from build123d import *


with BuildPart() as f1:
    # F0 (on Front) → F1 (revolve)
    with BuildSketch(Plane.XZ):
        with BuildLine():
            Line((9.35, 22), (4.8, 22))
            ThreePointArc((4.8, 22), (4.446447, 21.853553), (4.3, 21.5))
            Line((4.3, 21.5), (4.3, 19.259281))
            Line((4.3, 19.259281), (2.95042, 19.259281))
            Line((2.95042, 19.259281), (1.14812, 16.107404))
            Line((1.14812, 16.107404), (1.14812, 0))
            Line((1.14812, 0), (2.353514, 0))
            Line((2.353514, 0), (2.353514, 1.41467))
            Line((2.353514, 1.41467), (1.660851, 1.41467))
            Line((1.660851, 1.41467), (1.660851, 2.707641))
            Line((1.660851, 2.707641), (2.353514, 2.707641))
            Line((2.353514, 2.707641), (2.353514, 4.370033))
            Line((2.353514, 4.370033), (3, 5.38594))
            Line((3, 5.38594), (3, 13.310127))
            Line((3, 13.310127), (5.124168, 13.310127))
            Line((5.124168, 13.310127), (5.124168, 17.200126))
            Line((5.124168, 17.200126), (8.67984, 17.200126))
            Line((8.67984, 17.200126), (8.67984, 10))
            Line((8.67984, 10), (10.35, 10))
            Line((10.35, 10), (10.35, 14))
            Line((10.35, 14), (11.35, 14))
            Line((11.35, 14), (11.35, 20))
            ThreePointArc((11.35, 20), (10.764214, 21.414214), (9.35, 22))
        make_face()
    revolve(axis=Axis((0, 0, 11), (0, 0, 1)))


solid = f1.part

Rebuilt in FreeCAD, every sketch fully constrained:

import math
import FreeCAD as App
import Part
import Sketcher

V = App.Vector
Q = App.Units.Quantity

doc = App.newDocument("Part")
body = doc.addObject("PartDesign::Body", "Body")

sketch1 = doc.addObject("Sketcher::SketchObject", "Sketch")
body.addObject(sketch1)
sketch1.AttachmentSupport = (doc.XZ_Plane, [""])
sketch1.MapMode = "FlatFace"
sketch1.addGeometry(Part.LineSegment(V(9.3, 22, 0), V(4.8, 22, 0)), False)
sketch1.addGeometry(Part.ArcOfCircle(Part.Circle(V(4.8, 21.5, 0), V(0, 0, 1), 0.5), math.radians(90), math.radians(180)), False)
sketch1.addGeometry(Part.LineSegment(V(4.3, 21.5, 0), V(4.3, 19.3, 0)), False)
sketch1.addGeometry(Part.LineSegment(V(4.3, 19.3, 0), V(3, 19.3, 0)), False)
sketch1.addGeometry(Part.LineSegment(V(3, 19.3, 0), V(1.1, 16.1, 0)), False)
sketch1.addGeometry(Part.LineSegment(V(1.1, 16.1, 0), V(1.1, 0, 0)), False)
sketch1.addGeometry(Part.LineSegment(V(1.1, 0, 0), V(2.4, 0, 0)), False)
sketch1.addGeometry(Part.LineSegment(V(2.4, 0, 0), V(2.4, 1.4, 0)), False)
sketch1.addGeometry(Part.LineSegment(V(2.4, 1.4, 0), V(1.7, 1.4, 0)), False)
sketch1.addGeometry(Part.LineSegment(V(1.7, 1.4, 0), V(1.7, 2.7, 0)), False)
sketch1.addGeometry(Part.LineSegment(V(1.7, 2.7, 0), V(2.4, 2.7, 0)), False)
sketch1.addGeometry(Part.LineSegment(V(2.4, 2.7, 0), V(2.4, 4.4, 0)), False)
sketch1.addGeometry(Part.LineSegment(V(2.4, 4.4, 0), V(3, 5.4, 0)), False)
sketch1.addGeometry(Part.LineSegment(V(3, 5.4, 0), V(3, 13.3, 0)), False)
sketch1.addGeometry(Part.LineSegment(V(3, 13.3, 0), V(5.1, 13.3, 0)), False)
sketch1.addGeometry(Part.LineSegment(V(5.1, 13.3, 0), V(5.1, 17.2, 0)), False)
sketch1.addGeometry(Part.LineSegment(V(5.1, 17.2, 0), V(8.7, 17.2, 0)), False)
sketch1.addGeometry(Part.LineSegment(V(8.7, 17.2, 0), V(8.7, 10, 0)), False)
sketch1.addGeometry(Part.LineSegment(V(8.7, 10, 0), V(10.3, 10, 0)), False)
sketch1.addGeometry(Part.LineSegment(V(10.3, 10, 0), V(10.3, 14, 0)), False)
sketch1.addGeometry(Part.LineSegment(V(10.3, 14, 0), V(11.3, 14, 0)), False)
sketch1.addGeometry(Part.LineSegment(V(11.3, 14, 0), V(11.3, 20, 0)), False)
sketch1.addGeometry(Part.ArcOfCircle(Part.Circle(V(9.4, 20, 0), V(0, 0, 1), 2), math.radians(0), math.radians(90)), False)
sketch1.addConstraint(Sketcher.Constraint("Coincident", 0, 2, 1, 1))
sketch1.addConstraint(Sketcher.Constraint("Coincident", 1, 2, 2, 1))
sketch1.addConstraint(Sketcher.Constraint("Coincident", 2, 2, 3, 1))
sketch1.addConstraint(Sketcher.Constraint("Coincident", 3, 2, 4, 1))
sketch1.addConstraint(Sketcher.Constraint("Coincident", 4, 2, 5, 1))
sketch1.addConstraint(Sketcher.Constraint("Coincident", 5, 2, 6, 1))
sketch1.addConstraint(Sketcher.Constraint("Coincident", 6, 2, 7, 1))
sketch1.addConstraint(Sketcher.Constraint("Coincident", 7, 2, 8, 1))
sketch1.addConstraint(Sketcher.Constraint("Coincident", 8, 2, 9, 1))
sketch1.addConstraint(Sketcher.Constraint("Coincident", 9, 2, 10, 1))
sketch1.addConstraint(Sketcher.Constraint("Coincident", 10, 2, 11, 1))
sketch1.addConstraint(Sketcher.Constraint("Coincident", 11, 2, 12, 1))
sketch1.addConstraint(Sketcher.Constraint("Coincident", 12, 2, 13, 1))
sketch1.addConstraint(Sketcher.Constraint("Coincident", 13, 2, 14, 1))
sketch1.addConstraint(Sketcher.Constraint("Coincident", 14, 2, 15, 1))
sketch1.addConstraint(Sketcher.Constraint("Coincident", 15, 2, 16, 1))
sketch1.addConstraint(Sketcher.Constraint("Coincident", 16, 2, 17, 1))
sketch1.addConstraint(Sketcher.Constraint("Coincident", 17, 2, 18, 1))
sketch1.addConstraint(Sketcher.Constraint("Coincident", 18, 2, 19, 1))
sketch1.addConstraint(Sketcher.Constraint("Coincident", 19, 2, 20, 1))
sketch1.addConstraint(Sketcher.Constraint("Coincident", 20, 2, 21, 1))
sketch1.addConstraint(Sketcher.Constraint("Tangent", 21, 2, 22, 1))
sketch1.addConstraint(Sketcher.Constraint("Tangent", 22, 2, 0, 1))
sketch1.addConstraint(Sketcher.Constraint("Horizontal", 0))
sketch1.addConstraint(Sketcher.Constraint("Vertical", 2))
sketch1.addConstraint(Sketcher.Constraint("Horizontal", 3))
sketch1.addConstraint(Sketcher.Constraint("Vertical", 5))
sketch1.addConstraint(Sketcher.Constraint("Horizontal", 6))
sketch1.addConstraint(Sketcher.Constraint("Vertical", 7))
sketch1.addConstraint(Sketcher.Constraint("Horizontal", 8))
sketch1.addConstraint(Sketcher.Constraint("Vertical", 9))
sketch1.addConstraint(Sketcher.Constraint("Horizontal", 10))
sketch1.addConstraint(Sketcher.Constraint("Vertical", 11))
sketch1.addConstraint(Sketcher.Constraint("Vertical", 13))
sketch1.addConstraint(Sketcher.Constraint("Horizontal", 14))
sketch1.addConstraint(Sketcher.Constraint("Vertical", 15))
sketch1.addConstraint(Sketcher.Constraint("Horizontal", 16))
sketch1.addConstraint(Sketcher.Constraint("Vertical", 17))
sketch1.addConstraint(Sketcher.Constraint("Horizontal", 18))
sketch1.addConstraint(Sketcher.Constraint("Vertical", 19))
sketch1.addConstraint(Sketcher.Constraint("Horizontal", 20))
sketch1.addConstraint(Sketcher.Constraint("Vertical", 21))
sketch1.addConstraint(Sketcher.Constraint("PointOnObject", 5, 2, -1))
sketch1.addConstraint(Sketcher.Constraint("Vertical", 1, 3, 0, 2))
sketch1.addConstraint(Sketcher.Constraint("Vertical", 7, 2, 10, 2))
sketch1.addConstraint(Sketcher.Constraint("Radius", 22, Q("1.999999 mm")))
sketch1.addConstraint(Sketcher.Constraint("Radius", 1, Q("0.500001 mm")))
sketch1.addConstraint(Sketcher.Constraint("DistanceX", 20, 1, 20, 2, Q("1 mm")))
sketch1.addConstraint(Sketcher.Constraint("DistanceY", 19, 1, 19, 2, Q("4 mm")))
sketch1.addConstraint(Sketcher.Constraint("DistanceY", 21, 1, 21, 2, Q("6 mm")))
sketch1.addConstraint(Sketcher.Constraint("DistanceY", -1, 1, 22, 3, Q("20.000001 mm")))
sketch1.addConstraint(Sketcher.Constraint("DistanceX", -1, 1, 12, 2, Q("3 mm")))
sketch1.addConstraint(Sketcher.Constraint("DistanceX", 0, 2, 0, 1, Q("4.55 mm")))
sketch1.addConstraint(Sketcher.Constraint("DistanceY", 15, 1, 15, 2, Q("3.889999 mm")))
sketch1.addConstraint(Sketcher.Constraint("DistanceX", -1, 1, 1, 3, Q("4.800001 mm")))
sketch1.addConstraint(Sketcher.Constraint("DistanceY", -1, 1, 1, 2, Q("21.5 mm")))
sketch1.addConstraint(Sketcher.Constraint("DistanceX", 3, 2, 3, 1, Q("1.34958 mm")))
sketch1.addConstraint(Sketcher.Constraint("DistanceX", 14, 1, 14, 2, Q("2.124168 mm")))
sketch1.addConstraint(Sketcher.Constraint("DistanceX", 18, 1, 18, 2, Q("1.67016 mm")))
sketch1.addConstraint(Sketcher.Constraint("DistanceY", 2, 2, 2, 1, Q("2.240719 mm")))
sketch1.addConstraint(Sketcher.Constraint("DistanceY", 7, 1, 7, 2, Q("1.41467 mm")))
sketch1.addConstraint(Sketcher.Constraint("DistanceY", 9, 1, 9, 2, Q("1.292971 mm")))
sketch1.addConstraint(Sketcher.Constraint("DistanceX", 4, 2, 3, 2, Q("1.8023 mm")))
sketch1.addConstraint(Sketcher.Constraint("DistanceY", 10, 2, 12, 2, Q("2.678299 mm")))
sketch1.addConstraint(Sketcher.Constraint("DistanceX", 6, 1, 6, 2, Q("1.205394 mm")))
sketch1.addConstraint(Sketcher.Constraint("DistanceX", 8, 2, 8, 1, Q("0.692663 mm")))
sketch1.addConstraint(Sketcher.Constraint("DistanceY", 5, 2, 5, 1, Q("16.107404 mm")))
sketch1.addConstraint(Sketcher.Constraint("DistanceY", 11, 1, 11, 2, Q("1.662392 mm")))
sketch1.addConstraint(Sketcher.Constraint("DistanceY", 13, 1, 13, 2, Q("7.924187 mm")))
revolution = doc.addObject("PartDesign::Revolution", "Revolution")
body.addObject(revolution)
revolution.Profile = sketch1
revolution.ReferenceAxis = (sketch1, ["V_Axis"])
revolution.Angle = 360

doc.recompute()
